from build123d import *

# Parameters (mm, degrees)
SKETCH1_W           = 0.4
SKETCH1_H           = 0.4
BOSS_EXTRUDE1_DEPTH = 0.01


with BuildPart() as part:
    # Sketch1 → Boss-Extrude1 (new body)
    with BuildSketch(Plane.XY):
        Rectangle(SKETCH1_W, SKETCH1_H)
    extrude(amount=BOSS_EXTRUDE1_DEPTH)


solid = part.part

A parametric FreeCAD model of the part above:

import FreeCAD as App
import Part
import Sketcher

V = App.Vector

doc = App.newDocument("Part")
params = doc.addObject("Spreadsheet::Sheet", "Params")
for row, (alias, value) in enumerate([
    ("sketch1_width", "0.4 mm"),
    ("pad1_length", "0.01 mm"),
], start=1):
    params.set(f"A{row}", alias)
    params.set(f"B{row}", "=" + value)
    params.setAlias(f"B{row}", alias)

body = doc.addObject("PartDesign::Body", "Body")

# Sketch on XY plane
sketch1 = body.newObject("Sketcher::SketchObject", "Sketch")
sketch1.AttachmentSupport = (doc.getObject("XY_Plane"), [""])
sketch1.MapMode = "FlatFace"
sketch1.addGeometry(Part.LineSegment(V(-0.2, 0.2, 0), V(-0.2, -0.2, 0)), False)
sketch1.addGeometry(Part.LineSegment(V(-0.2, -0.2, 0), V(0.2, -0.2, 0)), False)
sketch1.addGeometry(Part.LineSegment(V(0.2, -0.2, 0), V(0.2, 0.2, 0)), False)
sketch1.addGeometry(Part.LineSegment(V(0.2, 0.2, 0), V(-0.2, 0.2, 0)), False)
sketch1.addConstraint(Sketcher.Constraint("Coincident", 0, 2, 1, 1))
sketch1.addConstraint(Sketcher.Constraint("Coincident", 1, 2, 2, 1))
sketch1.addConstraint(Sketcher.Constraint("Coincident", 2, 2, 3, 1))
sketch1.addConstraint(Sketcher.Constraint("Coincident", 3, 2, 0, 1))
sketch1.addConstraint(Sketcher.Constraint("Vertical", 0))
sketch1.addConstraint(Sketcher.Constraint("Horizontal", 1))
sketch1.addConstraint(Sketcher.Constraint("Vertical", 2))
sketch1.addConstraint(Sketcher.Constraint("Horizontal", 3))
sketch1.addConstraint(Sketcher.Constraint("Symmetric", 0, 2, 2, 2, -1, 1))
sketch1.addConstraint(Sketcher.Constraint("Equal", 3, 0))
sketch1.addConstraint(Sketcher.Constraint("DistanceX", 1, 1, 1, 2, 0.4))
sketch1.setExpression("Constraints[10]", "Params.sketch1_width")
pad1 = body.newObject("PartDesign::Pad", "Pad")
pad1.Profile = sketch1
pad1.setExpression("Length", "Params.pad1_length")

doc.recompute()
